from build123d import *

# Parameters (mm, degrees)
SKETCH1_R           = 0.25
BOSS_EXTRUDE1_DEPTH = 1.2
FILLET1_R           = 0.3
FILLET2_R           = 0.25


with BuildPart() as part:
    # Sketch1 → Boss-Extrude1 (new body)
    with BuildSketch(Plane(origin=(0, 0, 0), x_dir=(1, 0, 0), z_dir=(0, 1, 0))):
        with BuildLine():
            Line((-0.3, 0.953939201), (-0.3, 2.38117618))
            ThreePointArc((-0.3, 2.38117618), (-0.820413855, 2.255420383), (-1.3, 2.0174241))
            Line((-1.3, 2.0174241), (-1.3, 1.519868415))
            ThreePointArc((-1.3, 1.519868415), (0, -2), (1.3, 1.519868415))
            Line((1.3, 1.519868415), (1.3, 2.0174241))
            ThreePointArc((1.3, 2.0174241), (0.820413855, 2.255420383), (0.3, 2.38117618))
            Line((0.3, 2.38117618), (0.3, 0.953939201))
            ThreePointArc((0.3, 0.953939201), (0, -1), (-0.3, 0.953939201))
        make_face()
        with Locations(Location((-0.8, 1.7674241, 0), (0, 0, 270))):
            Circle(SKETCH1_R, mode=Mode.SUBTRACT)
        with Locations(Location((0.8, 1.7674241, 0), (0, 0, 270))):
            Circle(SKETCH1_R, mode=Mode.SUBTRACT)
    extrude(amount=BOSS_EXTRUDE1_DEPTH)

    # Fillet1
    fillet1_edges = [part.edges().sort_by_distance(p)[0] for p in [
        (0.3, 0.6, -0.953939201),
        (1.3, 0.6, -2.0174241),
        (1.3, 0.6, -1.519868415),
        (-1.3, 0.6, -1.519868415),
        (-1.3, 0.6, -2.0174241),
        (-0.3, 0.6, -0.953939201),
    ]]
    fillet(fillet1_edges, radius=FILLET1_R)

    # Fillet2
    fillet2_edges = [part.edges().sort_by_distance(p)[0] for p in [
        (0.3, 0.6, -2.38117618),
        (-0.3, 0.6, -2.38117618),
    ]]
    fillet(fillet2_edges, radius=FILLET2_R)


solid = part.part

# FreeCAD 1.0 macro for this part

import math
import FreeCAD as App
import Part
import Sketcher

V = App.Vector
Q = App.Units.Quantity


def edges_at(feature, points):
    """Names of the edges that pass closest to the given points."""
    edges = feature.Shape.Edges
    near = lambda p: min(range(len(edges)), key=lambda i: edges[i].distToShape(Part.Vertex(*p))[0])
    return sorted({f"Edge{near(p) + 1}" for p in points})

doc = App.newDocument("Part")
body = doc.addObject("PartDesign::Body", "Body")

# Sketch on XZ plane
sketch1 = doc.addObject("Sketcher::SketchObject", "Sketch")
body.addObject(sketch1)
sketch1.AttachmentSupport = (doc.XZ_Plane, [""])
sketch1.MapMode = "FlatFace"
sketch1.addGeometry(Part.LineSegment(V(-0.3, -0.95, 0), V(-0.3, -2.38, 0)), False)
sketch1.addGeometry(Part.ArcOfCircle(Part.Circle(V(0, 0, 0), V(0, 0, 1), 2.4), math.radians(-123), math.radians(-97)), False)
sketch1.addGeometry(Part.LineSegment(V(-1.3, -2.02, 0), V(-1.3, -1.52, 0)), False)
sketch1.addGeometry(Part.ArcOfCircle(Part.Circle(V(0, 0, 0), V(0, 0, 1), 2), math.radians(-49), math.radians(229)), False)
sketch1.addGeometry(Part.LineSegment(V(1.3, -1.52, 0), V(1.3, -2.02, 0)), False)
sketch1.addGeometry(Part.ArcOfCircle(Part.Circle(V(0, 0, 0), V(0, 0, 1), 2.4), math.radians(-83), math.radians(-57)), False)
sketch1.addGeometry(Part.LineSegment(V(0.3, -2.38, 0), V(0.3, -0.95, 0)), False)
sketch1.addGeometry(Part.ArcOfCircle(Part.Circle(V(0, 0, 0), V(0, 0, 1), 1), math.radians(-73), math.radians(253)), False)
sketch1.addGeometry(Part.Circle(V(-0.8, -1.77, 0), V(0, 0, 1), 0.25), False)
sketch1.addGeometry(Part.Circle(V(0.8, -1.77, 0), V(0, 0, 1), 0.25), False)
sketch1.addConstraint(Sketcher.Constraint("Coincident", 0, 2, 1, 2))
sketch1.addConstraint(Sketcher.Constraint("Coincident", 1, 1, 2, 1))
sketch1.addConstraint(Sketcher.Constraint("Coincident", 2, 2, 3, 2))
sketch1.addConstraint(Sketcher.Constraint("Coincident", 3, 1, 4, 1))
sketch1.addConstraint(Sketcher.Constraint("Coincident", 4, 2, 5, 2))
sketch1.addConstraint(Sketcher.Constraint("Coincident", 5, 1, 6, 1))
sketch1.addConstraint(Sketcher.Constraint("Coincident", 6, 2, 7, 1))
sketch1.addConstraint(Sketcher.Constraint("Coincident", 7, 2, 0, 1))
sketch1.addConstraint(Sketcher.Constraint("Vertical", 0))
sketch1.addConstraint(Sketcher.Constraint("Vertical", 2))
sketch1.addConstraint(Sketcher.Constraint("Vertical", 4))
sketch1.addConstraint(Sketcher.Constraint("Vertical", 6))
sketch1.addConstraint(Sketcher.Constraint("Coincident", 1, 3, -1, 1))
sketch1.addConstraint(Sketcher.Constraint("Coincident", 3, 3, -1, 1))
sketch1.addConstraint(Sketcher.Constraint("Coincident", 5, 3, -1, 1))
sketch1.addConstraint(Sketcher.Constraint("Coincident", 7, 3, -1, 1))
sketch1.addConstraint(Sketcher.Constraint("Equal", 1, 5))
sketch1.addConstraint(Sketcher.Constraint("Equal", 8, 9))
sketch1.addConstraint(Sketcher.Constraint("Symmetric", 8, 3, 9, 3, -2))
sketch1.addConstraint(Sketcher.Constraint("Horizontal", 2, 2, 3, 1))
sketch1.addConstraint(Sketcher.Constraint("Horizontal", 0, 2, 5, 1))
sketch1.addConstraint(Sketcher.Constraint("Radius", 3, Q("2 mm")))
sketch1.addConstraint(Sketcher.Constraint("Radius", 7, Q("1 mm")))
sketch1.addConstraint(Sketcher.Constraint("Diameter", 8, Q("0.5 mm")))
sketch1.addConstraint(Sketcher.Constraint("Radius", 1, Q("2.4 mm")))
sketch1.addConstraint(Sketcher.Constraint("DistanceX", 1, 1, 0, 2, Q("1 mm")))
sketch1.addConstraint(Sketcher.Constraint("DistanceX", 8, 3, -1, 1, Q("0.8 mm")))
sketch1.addConstraint(Sketcher.Constraint("DistanceX", 0, 2, -1, 1, Q("0.3 mm")))
sketch1.addConstraint(Sketcher.Constraint("DistanceY", 1, 1, 8, 3, Q("0.25 mm")))
pad1 = doc.addObject("PartDesign::Pad", "Pad")
body.addObject(pad1)
pad1.Profile = sketch1
pad1.Length = 1.2
pad1.Reversed = True
doc.recompute()

fillet = doc.addObject("PartDesign::Fillet", "Fillet")
body.addObject(fillet)
fillet.Base = (pad1, edges_at(pad1, [
    (0.3, 0.6, -0.954),
    (1.3, 0.6, -2.017),
    (1.3, 0.6, -1.52),
    (-1.3, 0.6, -1.52),
    (-1.3, 0.6, -2.017),
    (-0.3, 0.6, -0.954),
]))
fillet.Radius = 0.3
doc.recompute()

fillet2 = doc.addObject("PartDesign::Fillet", "Fillet001")
body.addObject(fillet2)
fillet2.Base = (fillet, edges_at(fillet, [(0.3, 0.6, -2.381), (-0.3, 0.6, -2.381)]))
fillet2.Radius = 0.25

doc.recompute()
